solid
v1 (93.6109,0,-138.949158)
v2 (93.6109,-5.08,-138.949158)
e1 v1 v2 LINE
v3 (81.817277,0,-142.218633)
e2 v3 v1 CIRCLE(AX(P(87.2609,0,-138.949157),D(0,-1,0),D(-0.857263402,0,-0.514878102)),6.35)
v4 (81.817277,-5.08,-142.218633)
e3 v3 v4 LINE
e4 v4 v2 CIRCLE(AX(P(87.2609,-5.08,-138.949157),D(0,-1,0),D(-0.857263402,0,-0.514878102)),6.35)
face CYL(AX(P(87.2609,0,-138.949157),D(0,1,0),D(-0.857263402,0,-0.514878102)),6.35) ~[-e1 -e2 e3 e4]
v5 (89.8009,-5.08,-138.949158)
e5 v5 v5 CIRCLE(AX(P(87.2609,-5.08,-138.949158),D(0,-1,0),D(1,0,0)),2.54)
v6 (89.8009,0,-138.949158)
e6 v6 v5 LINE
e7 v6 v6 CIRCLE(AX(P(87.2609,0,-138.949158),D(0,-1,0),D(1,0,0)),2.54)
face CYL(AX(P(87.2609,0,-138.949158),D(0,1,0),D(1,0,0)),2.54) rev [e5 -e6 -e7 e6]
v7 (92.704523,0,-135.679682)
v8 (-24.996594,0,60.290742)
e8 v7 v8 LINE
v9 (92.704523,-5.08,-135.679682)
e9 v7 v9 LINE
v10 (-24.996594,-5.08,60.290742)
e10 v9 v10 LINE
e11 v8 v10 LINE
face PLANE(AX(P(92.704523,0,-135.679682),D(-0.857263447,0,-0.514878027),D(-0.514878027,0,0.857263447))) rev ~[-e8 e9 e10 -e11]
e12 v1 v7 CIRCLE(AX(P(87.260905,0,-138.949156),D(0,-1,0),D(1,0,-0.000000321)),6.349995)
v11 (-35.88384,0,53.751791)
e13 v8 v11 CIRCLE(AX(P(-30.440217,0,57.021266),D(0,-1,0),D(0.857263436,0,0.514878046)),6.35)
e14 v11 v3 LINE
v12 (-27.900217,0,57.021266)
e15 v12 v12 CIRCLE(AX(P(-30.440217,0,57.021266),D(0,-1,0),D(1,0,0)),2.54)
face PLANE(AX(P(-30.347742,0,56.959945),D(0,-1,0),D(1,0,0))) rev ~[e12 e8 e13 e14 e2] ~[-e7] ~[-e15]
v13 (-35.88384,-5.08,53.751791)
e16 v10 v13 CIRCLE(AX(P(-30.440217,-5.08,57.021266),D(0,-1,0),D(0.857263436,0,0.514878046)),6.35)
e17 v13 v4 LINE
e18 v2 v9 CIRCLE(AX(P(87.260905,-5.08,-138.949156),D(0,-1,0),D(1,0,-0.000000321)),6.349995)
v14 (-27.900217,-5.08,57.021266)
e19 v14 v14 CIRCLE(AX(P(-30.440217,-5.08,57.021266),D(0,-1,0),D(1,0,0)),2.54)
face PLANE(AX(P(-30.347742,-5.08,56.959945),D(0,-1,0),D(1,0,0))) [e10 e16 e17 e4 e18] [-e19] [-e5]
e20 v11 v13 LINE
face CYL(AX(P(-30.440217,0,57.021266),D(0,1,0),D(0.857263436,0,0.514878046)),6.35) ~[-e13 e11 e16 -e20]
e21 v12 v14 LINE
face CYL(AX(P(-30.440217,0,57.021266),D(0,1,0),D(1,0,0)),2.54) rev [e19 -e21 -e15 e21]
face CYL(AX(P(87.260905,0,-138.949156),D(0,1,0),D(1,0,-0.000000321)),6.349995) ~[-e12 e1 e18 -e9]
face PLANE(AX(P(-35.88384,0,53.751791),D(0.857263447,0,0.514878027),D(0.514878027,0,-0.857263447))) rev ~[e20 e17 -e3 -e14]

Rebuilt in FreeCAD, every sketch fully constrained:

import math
import FreeCAD as App
import Part
import Sketcher

V = App.Vector
Q = App.Units.Quantity

doc = App.newDocument("Part")
body = doc.addObject("PartDesign::Body", "Body")

sketch1 = doc.addObject("Sketcher::SketchObject", "Sketch")
body.addObject(sketch1)
sketch1.AttachmentSupport = (doc.XZ_Plane, [""])
sketch1.MapMode = "FlatFace"
sketch1.addGeometry([
    Part.ArcOfCircle(Part.Circle(V(-30.4, 57, 0), V(0, 0, 1), 6.4), math.radians(31), math.radians(211)),
    Part.LineSegment(V(-35.9, 53.8, 0), V(81.8, -142.2, 0)),
    Part.ArcOfCircle(Part.Circle(V(87.3, -138.9, 0), V(0, 0, 1), 6.4), math.radians(-149), math.radians(0)),
    Part.ArcOfCircle(Part.Circle(V(87.3, -138.9, 0), V(0, 0, 1), 6.3), math.radians(0), math.radians(31)),
    Part.LineSegment(V(92.7, -135.7, 0), V(-25, 60.3, 0)),
    Part.Circle(V(87.3, -138.9, 0), V(0, 0, 1), 2.5),
    Part.Circle(V(-30.4, 57, 0), V(0, 0, 1), 2.5),
], False)
sketch1.addConstraint([
    Sketcher.Constraint("Tangent", 0, 2, 1, 1),
    Sketcher.Constraint("Tangent", 1, 2, 2, 1),
    Sketcher.Constraint("Tangent", 2, 2, 3, 1),
    Sketcher.Constraint("Tangent", 3, 2, 4, 1),
    Sketcher.Constraint("Tangent", 4, 2, 0, 1),
    Sketcher.Constraint("Coincident", 5, 3, 2, 3),
    Sketcher.Constraint("Coincident", 6, 3, 0, 3),
    Sketcher.Constraint("Equal", 0, 2),
    Sketcher.Constraint("Equal", 5, 6),
    Sketcher.Constraint("Parallel", 1, 4),
    Sketcher.Constraint("Horizontal", 5, 3, 2, 2),
    Sketcher.Constraint("Diameter", 5, Q("0.2 in")),
    Sketcher.Constraint("Radius", 0, Q("0.25 in")),
    Sketcher.Constraint("Distance", 1, Q("9 in")),
    Sketcher.Constraint("DistanceX", -1, 1, 2, 3, 87.2609),
    Sketcher.Constraint("DistanceY", 1, 2, 6, 3, 199.239899),
    Sketcher.Constraint("DistanceY", 5, 3, -1, 1, 138.949158),
])
pad1 = doc.addObject("PartDesign::Pad", "Pad")
body.addObject(pad1)
pad1.Profile = sketch1
pad1.Length = Q("0.2 in")

doc.recompute()
